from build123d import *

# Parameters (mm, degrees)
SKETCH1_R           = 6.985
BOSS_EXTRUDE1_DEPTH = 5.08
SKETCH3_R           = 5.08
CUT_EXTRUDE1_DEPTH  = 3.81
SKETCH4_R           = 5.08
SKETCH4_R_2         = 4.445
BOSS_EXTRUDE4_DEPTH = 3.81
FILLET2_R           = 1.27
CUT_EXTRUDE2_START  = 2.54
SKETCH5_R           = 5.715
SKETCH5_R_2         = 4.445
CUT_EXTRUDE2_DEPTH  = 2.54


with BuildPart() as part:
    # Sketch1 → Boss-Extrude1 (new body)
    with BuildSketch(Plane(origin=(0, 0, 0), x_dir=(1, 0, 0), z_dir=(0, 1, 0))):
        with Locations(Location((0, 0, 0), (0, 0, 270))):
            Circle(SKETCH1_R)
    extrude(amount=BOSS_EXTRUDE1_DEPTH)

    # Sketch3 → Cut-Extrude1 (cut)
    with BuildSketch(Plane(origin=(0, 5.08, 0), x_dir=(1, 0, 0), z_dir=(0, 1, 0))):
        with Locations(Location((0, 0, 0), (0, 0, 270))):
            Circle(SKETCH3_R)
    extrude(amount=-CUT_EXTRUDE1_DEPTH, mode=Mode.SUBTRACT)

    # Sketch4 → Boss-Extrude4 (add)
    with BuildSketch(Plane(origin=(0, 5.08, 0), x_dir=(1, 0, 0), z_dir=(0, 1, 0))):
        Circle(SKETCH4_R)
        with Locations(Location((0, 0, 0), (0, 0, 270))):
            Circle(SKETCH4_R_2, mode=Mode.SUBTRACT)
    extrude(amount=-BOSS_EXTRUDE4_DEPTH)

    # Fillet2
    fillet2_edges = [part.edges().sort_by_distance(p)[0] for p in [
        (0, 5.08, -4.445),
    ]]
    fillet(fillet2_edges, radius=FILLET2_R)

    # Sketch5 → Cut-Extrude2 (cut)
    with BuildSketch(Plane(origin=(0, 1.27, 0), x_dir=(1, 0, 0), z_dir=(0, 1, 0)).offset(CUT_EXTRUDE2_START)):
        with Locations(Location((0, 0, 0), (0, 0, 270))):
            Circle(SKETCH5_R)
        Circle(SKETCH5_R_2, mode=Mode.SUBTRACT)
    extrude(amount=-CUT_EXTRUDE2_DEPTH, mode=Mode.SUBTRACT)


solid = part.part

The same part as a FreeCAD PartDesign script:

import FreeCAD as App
import Part
import Sketcher

V = App.Vector
Q = App.Units.Quantity


def edges_at(feature, points):
    """Names of the edges that pass closest to the given points."""
    edges = feature.Shape.Edges
    near = lambda p: min(range(len(edges)), key=lambda i: edges[i].distToShape(Part.Vertex(*p))[0])
    return sorted({f"Edge{near(p) + 1}" for p in points})

doc = App.newDocument("Part")
body = doc.addObject("PartDesign::Body", "Body")

# Sketch on XZ plane
sketch1 = body.newObject("Sketcher::SketchObject", "Sketch")
sketch1.AttachmentSupport = (doc.getObject("XZ_Plane"), [""])
sketch1.MapMode = "FlatFace"
sketch1.addGeometry(Part.Circle(V(0, 0, 0), V(0, 0, 1), 7), False)
sketch1.addConstraint([
    Sketcher.Constraint("Coincident", 0, 3, -1, 1),
    Sketcher.Constraint("Diameter", 0, Q("0.55 in")),
])
pad1 = body.newObject("PartDesign::Pad", "Pad")
pad1.Profile = sketch1
pad1.Length = Q("0.2 in")
pad1.Reversed = True

# Sketch on XZ plane
sketch2 = body.newObject("Sketcher::SketchObject", "Sketch001")
sketch2.AttachmentSupport = (doc.getObject("XZ_Plane"), [""])
sketch2.MapMode = "FlatFace"
sketch2.AttachmentOffset = App.Placement(V(0, 0, -0.2 * 25.4), App.Rotation())
sketch2.addGeometry(Part.Circle(V(0, 0, 0), V(0, 0, 1), 5), False)
sketch2.addConstraint([
    Sketcher.Constraint("Coincident", 0, 3, -1, 1),
    Sketcher.Constraint("Diameter", 0, Q("0.4 in")),
])
pocket1 = body.newObject("PartDesign::Pocket", "Pocket")
pocket1.Profile = sketch2
pocket1.Length = Q("0.15 in")
pocket1.Reversed = True

# Sketch on XZ plane
sketch3 = body.newObject("Sketcher::SketchObject", "Sketch002")
sketch3.AttachmentSupport = (doc.getObject("XZ_Plane"), [""])
sketch3.MapMode = "FlatFace"
sketch3.AttachmentOffset = App.Placement(V(0, 0, -0.2 * 25.4), App.Rotation())
sketch3.addGeometry([
    Part.Circle(V(0, 0, 0), V(0, 0, 1), 5.1),
    Part.Circle(V(0, 0, 0), V(0, 0, 1), 4.4),
], False)
sketch3.addConstraint([
    Sketcher.Constraint("Coincident", 0, 3, -1, 1),
    Sketcher.Constraint("Coincident", 1, 3, -1, 1),
    Sketcher.Constraint("Diameter", 0, Q("0.4 in")),
    Sketcher.Constraint("Diameter", 1, Q("0.35 in")),
])
pad2 = body.newObject("PartDesign::Pad", "Pad001")
pad2.Profile = sketch3
pad2.Length = Q("0.15 in")
doc.recompute()

fillet = body.newObject("PartDesign::Fillet", "Fillet")
fillet.Base = (pad2, edges_at(pad2, [(0, 5.08, -4.445)]))
fillet.Radius = Q("0.05 in")

# Sketch on XZ plane
sketch4 = body.newObject("Sketcher::SketchObject", "Sketch003")
sketch4.AttachmentSupport = (doc.getObject("XZ_Plane"), [""])
sketch4.MapMode = "FlatFace"
sketch4.AttachmentOffset = App.Placement(V(0, 0, -0.15 * 25.4), App.Rotation())
sketch4.addGeometry([
    Part.Circle(V(0, 0, 0), V(0, 0, 1), 5.7),
    Part.Circle(V(0, 0, 0), V(0, 0, 1), 4.4),
], False)
sketch4.addConstraint([
    Sketcher.Constraint("Coincident", 0, 3, -1, 1),
    Sketcher.Constraint("Coincident", 1, 3, -1, 1),
    Sketcher.Constraint("Diameter", 0, Q("0.45 in")),
    Sketcher.Constraint("Diameter", 1, Q("0.35 in")),
])
pocket2 = body.newObject("PartDesign::Pocket", "Pocket001")
pocket2.Profile = sketch4
pocket2.Length = Q("0.1 in")
pocket2.Reversed = True

doc.recompute()
